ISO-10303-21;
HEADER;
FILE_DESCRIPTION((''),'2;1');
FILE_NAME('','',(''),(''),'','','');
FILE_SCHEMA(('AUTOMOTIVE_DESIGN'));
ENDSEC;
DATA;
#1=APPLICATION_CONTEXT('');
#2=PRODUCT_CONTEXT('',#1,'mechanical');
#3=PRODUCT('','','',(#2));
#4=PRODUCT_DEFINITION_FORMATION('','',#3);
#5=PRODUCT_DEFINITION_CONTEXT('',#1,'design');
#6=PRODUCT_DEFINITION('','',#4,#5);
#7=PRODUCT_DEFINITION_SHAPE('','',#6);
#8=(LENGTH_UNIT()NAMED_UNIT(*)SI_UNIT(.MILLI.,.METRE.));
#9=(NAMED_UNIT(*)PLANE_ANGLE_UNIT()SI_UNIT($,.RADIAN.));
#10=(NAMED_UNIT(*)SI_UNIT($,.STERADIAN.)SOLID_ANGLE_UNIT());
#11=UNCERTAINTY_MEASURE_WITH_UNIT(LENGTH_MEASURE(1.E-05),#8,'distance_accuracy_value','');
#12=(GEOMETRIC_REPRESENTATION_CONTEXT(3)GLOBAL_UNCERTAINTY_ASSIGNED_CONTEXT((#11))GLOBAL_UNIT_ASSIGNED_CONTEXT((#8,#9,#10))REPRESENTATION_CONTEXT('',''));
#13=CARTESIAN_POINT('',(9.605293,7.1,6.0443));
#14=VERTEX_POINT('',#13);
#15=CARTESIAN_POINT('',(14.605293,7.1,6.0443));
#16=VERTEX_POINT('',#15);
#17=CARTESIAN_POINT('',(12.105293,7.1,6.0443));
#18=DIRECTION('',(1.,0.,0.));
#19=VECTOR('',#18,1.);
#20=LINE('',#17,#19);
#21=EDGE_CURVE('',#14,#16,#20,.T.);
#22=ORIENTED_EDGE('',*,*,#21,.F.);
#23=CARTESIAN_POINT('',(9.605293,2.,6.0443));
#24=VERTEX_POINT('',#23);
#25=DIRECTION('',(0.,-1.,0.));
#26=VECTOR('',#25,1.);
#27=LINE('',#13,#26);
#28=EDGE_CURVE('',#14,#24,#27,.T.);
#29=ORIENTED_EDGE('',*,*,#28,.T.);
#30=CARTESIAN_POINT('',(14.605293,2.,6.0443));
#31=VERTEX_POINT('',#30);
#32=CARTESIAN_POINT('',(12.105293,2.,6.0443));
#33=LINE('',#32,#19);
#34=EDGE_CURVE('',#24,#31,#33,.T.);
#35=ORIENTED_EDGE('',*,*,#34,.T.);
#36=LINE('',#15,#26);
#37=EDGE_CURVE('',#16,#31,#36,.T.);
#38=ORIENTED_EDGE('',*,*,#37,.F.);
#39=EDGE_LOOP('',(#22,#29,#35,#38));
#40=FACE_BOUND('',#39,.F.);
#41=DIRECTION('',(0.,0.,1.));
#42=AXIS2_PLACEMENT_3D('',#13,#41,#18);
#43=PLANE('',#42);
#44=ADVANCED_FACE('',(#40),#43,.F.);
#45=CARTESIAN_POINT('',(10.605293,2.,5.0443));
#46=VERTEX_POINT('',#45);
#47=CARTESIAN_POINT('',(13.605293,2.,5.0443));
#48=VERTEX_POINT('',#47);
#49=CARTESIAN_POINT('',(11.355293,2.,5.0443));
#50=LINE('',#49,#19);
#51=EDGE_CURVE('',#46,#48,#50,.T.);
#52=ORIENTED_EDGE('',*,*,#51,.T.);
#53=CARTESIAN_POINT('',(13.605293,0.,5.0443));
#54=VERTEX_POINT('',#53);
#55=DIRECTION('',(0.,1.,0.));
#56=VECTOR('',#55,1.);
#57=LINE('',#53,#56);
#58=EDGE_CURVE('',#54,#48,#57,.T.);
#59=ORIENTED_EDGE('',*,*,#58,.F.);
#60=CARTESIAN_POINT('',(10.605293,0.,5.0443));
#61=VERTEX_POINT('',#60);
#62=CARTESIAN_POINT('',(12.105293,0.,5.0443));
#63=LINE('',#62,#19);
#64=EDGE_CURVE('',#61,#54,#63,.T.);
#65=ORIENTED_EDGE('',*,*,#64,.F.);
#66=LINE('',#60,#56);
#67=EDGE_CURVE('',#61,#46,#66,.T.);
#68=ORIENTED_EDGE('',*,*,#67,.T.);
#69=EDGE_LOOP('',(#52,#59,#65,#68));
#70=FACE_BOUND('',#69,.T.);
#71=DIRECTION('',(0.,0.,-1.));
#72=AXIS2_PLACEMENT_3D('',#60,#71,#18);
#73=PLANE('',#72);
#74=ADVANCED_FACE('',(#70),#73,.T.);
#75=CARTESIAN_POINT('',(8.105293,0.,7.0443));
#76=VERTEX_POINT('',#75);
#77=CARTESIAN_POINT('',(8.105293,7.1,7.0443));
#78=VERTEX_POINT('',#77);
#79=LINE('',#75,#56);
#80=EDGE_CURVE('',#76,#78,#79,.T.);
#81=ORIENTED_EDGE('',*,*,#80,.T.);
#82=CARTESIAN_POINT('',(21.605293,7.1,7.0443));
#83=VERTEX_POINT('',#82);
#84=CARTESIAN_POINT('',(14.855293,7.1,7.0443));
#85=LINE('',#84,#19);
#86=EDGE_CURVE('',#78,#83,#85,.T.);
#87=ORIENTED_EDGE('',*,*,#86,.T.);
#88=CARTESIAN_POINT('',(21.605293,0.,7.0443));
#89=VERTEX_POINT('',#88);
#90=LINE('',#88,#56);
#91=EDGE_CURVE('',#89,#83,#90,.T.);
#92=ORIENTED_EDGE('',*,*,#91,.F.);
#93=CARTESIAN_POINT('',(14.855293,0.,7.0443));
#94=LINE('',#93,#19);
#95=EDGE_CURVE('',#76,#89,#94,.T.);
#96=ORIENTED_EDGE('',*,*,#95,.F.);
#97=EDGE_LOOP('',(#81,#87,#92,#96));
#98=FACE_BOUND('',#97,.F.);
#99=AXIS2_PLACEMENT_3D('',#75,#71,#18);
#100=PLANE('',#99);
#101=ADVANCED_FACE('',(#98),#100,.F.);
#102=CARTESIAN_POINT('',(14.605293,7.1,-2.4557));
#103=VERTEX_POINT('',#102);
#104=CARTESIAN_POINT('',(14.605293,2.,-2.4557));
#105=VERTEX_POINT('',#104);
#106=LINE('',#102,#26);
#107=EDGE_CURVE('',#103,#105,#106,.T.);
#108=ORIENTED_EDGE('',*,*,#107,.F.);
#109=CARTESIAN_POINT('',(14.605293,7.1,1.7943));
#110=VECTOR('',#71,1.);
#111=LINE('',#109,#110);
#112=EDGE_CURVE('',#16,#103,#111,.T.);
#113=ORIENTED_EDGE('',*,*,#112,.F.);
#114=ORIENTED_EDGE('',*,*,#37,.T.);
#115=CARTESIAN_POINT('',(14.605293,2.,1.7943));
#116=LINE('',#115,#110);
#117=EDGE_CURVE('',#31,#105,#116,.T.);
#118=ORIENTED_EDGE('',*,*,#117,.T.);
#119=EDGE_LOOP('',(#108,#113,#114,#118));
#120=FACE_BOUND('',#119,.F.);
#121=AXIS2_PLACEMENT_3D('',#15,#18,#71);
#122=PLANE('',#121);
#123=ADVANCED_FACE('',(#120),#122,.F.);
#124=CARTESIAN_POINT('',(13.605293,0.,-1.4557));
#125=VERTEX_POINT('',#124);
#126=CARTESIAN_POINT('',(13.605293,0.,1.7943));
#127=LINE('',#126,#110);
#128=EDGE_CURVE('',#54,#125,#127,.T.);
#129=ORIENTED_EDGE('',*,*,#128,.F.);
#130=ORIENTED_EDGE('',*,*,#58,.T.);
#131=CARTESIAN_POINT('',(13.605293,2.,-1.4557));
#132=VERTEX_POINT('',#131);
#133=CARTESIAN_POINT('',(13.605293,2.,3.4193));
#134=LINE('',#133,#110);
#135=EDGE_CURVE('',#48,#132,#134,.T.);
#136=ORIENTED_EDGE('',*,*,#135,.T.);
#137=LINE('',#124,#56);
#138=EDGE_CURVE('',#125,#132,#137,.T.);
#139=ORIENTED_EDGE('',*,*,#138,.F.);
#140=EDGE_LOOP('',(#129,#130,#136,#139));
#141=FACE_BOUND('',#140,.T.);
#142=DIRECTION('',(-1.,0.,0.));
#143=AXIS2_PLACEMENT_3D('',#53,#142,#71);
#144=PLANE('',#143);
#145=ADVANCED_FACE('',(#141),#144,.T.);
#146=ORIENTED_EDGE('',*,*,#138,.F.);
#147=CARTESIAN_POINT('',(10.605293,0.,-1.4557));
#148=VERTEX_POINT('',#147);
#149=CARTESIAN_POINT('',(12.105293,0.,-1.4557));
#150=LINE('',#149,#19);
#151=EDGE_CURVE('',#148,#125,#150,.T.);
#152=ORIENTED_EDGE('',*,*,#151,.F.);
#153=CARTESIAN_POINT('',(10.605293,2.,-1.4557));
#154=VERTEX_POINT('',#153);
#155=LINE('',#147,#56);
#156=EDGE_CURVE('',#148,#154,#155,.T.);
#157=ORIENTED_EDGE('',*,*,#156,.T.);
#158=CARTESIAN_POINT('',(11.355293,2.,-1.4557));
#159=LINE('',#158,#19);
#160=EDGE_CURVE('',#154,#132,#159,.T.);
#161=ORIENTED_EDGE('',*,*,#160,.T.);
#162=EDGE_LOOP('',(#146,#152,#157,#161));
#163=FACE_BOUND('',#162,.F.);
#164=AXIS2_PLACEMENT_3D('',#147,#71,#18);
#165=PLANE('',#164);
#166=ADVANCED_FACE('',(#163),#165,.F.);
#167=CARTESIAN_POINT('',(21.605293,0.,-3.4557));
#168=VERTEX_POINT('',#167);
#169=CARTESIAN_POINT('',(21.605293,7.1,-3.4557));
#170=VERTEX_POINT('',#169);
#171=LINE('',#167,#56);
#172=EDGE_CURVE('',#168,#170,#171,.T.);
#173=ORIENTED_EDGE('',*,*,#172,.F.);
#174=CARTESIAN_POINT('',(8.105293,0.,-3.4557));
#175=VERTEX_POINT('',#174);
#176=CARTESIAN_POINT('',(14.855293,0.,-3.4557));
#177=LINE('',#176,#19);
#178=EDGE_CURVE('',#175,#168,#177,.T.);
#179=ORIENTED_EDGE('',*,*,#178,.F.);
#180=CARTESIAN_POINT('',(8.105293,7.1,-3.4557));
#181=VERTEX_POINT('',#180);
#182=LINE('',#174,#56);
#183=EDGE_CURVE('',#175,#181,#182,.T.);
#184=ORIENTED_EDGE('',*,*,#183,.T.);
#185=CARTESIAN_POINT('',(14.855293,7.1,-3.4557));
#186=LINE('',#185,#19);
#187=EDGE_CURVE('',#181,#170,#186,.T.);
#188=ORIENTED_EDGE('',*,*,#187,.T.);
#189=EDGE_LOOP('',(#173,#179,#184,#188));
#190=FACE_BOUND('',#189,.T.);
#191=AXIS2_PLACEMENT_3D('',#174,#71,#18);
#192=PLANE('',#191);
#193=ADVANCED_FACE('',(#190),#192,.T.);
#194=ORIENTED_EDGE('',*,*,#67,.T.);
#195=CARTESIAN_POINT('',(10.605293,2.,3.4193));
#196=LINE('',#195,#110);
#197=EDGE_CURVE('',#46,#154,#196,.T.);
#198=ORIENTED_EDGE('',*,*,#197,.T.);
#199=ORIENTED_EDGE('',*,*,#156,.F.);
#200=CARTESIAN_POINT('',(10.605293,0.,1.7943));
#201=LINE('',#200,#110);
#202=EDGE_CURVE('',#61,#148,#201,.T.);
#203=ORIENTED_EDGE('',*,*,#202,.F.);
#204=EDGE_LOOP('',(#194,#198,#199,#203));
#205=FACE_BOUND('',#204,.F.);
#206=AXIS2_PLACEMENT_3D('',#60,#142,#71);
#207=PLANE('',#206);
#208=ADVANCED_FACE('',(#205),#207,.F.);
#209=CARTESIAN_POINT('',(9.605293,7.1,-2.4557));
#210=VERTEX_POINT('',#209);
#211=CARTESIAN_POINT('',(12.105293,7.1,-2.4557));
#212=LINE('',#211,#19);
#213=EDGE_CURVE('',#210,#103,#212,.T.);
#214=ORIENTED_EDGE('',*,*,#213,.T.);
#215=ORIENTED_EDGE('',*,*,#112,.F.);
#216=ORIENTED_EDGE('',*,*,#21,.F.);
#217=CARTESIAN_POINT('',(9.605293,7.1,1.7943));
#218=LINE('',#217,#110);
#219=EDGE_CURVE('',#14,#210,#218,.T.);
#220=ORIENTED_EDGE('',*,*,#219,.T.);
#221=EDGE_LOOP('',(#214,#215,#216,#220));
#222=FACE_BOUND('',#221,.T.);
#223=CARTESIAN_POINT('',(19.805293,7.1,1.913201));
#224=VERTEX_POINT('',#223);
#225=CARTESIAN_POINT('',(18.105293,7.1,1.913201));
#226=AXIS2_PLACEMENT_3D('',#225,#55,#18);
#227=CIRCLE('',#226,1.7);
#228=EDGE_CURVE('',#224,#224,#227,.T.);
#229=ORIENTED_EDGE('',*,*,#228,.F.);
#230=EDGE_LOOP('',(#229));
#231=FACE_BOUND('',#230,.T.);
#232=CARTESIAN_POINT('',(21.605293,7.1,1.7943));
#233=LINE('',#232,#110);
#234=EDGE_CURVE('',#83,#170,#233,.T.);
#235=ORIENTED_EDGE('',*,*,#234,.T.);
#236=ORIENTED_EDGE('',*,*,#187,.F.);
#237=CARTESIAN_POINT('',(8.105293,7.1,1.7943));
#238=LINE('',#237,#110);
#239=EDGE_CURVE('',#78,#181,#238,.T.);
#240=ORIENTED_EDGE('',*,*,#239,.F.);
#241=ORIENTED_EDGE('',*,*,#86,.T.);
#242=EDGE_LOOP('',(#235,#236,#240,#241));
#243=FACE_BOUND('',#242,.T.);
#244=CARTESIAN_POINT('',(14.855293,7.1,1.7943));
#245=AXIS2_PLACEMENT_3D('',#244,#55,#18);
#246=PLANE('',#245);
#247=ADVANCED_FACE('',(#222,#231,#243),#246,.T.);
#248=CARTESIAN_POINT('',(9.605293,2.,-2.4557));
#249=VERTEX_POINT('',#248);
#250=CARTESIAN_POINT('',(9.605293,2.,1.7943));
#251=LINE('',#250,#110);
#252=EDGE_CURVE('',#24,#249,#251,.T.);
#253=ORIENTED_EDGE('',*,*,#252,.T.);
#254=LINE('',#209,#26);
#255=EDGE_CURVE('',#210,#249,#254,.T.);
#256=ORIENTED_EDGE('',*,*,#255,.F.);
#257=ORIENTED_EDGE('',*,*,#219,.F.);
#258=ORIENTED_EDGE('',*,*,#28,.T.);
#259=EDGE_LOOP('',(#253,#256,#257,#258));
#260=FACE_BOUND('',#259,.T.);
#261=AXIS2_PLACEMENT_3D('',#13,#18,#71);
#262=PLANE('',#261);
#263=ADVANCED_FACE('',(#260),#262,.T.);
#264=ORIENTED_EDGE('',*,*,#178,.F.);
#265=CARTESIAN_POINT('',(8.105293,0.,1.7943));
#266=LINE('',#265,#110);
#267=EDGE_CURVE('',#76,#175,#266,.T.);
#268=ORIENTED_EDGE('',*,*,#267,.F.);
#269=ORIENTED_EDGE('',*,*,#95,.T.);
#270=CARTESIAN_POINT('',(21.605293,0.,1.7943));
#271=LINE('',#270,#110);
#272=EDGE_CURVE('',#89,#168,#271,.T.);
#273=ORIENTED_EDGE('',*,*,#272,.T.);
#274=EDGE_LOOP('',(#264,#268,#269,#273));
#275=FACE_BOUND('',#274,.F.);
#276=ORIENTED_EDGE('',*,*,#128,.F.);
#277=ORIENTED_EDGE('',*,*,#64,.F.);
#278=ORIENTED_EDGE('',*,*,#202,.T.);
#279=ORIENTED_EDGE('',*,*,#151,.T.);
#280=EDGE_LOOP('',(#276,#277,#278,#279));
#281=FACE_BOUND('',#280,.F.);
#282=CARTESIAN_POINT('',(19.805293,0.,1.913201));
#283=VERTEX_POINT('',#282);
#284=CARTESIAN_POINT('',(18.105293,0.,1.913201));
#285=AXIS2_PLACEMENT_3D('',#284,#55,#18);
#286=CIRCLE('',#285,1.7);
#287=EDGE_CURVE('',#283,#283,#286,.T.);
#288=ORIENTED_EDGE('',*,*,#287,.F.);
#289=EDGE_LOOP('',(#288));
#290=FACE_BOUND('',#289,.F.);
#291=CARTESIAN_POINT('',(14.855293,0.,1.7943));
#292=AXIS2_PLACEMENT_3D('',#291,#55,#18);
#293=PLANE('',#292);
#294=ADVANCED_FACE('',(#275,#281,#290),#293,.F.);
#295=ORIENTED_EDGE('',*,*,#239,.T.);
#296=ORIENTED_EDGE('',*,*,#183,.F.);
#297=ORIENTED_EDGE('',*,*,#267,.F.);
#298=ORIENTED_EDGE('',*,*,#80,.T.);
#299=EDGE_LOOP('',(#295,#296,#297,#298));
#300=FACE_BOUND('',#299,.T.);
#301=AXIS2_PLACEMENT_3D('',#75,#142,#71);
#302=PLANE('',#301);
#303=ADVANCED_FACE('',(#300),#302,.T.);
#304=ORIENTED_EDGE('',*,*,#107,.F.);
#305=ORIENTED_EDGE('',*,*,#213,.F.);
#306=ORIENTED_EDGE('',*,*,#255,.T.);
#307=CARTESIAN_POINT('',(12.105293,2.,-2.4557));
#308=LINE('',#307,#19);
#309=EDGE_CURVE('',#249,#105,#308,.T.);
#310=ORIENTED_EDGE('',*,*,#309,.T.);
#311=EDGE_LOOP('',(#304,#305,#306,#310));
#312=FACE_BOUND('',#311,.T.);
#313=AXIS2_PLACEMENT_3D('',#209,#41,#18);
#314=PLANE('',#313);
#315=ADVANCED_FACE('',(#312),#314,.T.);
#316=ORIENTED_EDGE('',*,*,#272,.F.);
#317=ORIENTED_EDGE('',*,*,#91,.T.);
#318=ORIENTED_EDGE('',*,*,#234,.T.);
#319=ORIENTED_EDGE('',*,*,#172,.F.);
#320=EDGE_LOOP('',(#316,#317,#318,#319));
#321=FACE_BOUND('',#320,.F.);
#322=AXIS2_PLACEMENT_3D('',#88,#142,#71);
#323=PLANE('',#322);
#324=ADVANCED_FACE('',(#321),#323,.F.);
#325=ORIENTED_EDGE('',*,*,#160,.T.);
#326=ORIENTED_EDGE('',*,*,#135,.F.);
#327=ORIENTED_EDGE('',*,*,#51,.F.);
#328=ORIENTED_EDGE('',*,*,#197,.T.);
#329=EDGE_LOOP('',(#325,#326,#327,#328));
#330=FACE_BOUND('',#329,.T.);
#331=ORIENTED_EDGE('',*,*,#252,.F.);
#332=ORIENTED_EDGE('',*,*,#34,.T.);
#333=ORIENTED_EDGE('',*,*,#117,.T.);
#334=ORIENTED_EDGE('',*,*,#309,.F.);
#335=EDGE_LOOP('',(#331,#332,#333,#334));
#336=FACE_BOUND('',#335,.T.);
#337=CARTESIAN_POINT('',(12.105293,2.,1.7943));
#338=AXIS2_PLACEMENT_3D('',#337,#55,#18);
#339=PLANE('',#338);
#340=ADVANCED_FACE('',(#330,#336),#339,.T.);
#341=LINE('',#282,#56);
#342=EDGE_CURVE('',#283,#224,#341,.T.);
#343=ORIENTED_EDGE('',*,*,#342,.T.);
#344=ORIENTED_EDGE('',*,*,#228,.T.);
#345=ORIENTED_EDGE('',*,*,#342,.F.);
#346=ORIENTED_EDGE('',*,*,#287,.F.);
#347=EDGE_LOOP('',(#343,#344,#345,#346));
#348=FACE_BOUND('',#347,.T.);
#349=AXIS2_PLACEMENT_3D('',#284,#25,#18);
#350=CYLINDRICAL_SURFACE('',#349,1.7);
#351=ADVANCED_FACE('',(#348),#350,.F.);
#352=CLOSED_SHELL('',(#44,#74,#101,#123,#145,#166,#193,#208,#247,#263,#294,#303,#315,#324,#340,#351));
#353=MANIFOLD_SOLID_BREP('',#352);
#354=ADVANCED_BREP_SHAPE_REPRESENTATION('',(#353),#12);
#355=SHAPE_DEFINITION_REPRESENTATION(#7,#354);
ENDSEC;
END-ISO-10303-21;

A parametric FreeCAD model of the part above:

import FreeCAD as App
import Part
import Sketcher
from FreeCAD import Vector


def add_polygon(sketch, points):
    """Adds a closed chain of lines whose ends are joined by coincident constraints."""
    first, n = sketch.GeometryCount, len(points)
    for a, b in zip(points, points[1:] + points[:1]):
        sketch.addGeometry(Part.LineSegment(App.Vector(*a, 0), App.Vector(*b, 0)), False)
    for i in range(n):
        sketch.addConstraint(Sketcher.Constraint("Coincident", first + i, 2, first + (i + 1) % n, 1))

doc = App.newDocument("Part")
body = doc.addObject("PartDesign::Body", "Body")

sketch1 = body.newObject("Sketcher::SketchObject", "Sketch")
sketch1.AttachmentSupport = (doc.getObject("XZ_Plane"), [""])
sketch1.MapMode = "FlatFace"
add_polygon(sketch1, [(8.1, -3.5), (8.1, 7), (21.6, 7), (21.6, -3.5)])
sketch1.addGeometry(Part.Circle(Vector(18.1, 1.9, 0), Vector(0, 0, 1), 1.7), False)
add_polygon(sketch1, [(13.6, 5), (10.6, 5), (10.6, -1.5), (13.6, -1.5)])
sketch1.addConstraint(Sketcher.Constraint("Vertical", 0))
sketch1.addConstraint(Sketcher.Constraint("Horizontal", 1))
sketch1.addConstraint(Sketcher.Constraint("Vertical", 2))
sketch1.addConstraint(Sketcher.Constraint("Horizontal", 3))
sketch1.addConstraint(Sketcher.Constraint("Horizontal", 5))
sketch1.addConstraint(Sketcher.Constraint("Vertical", 6))
sketch1.addConstraint(Sketcher.Constraint("Horizontal", 7))
sketch1.addConstraint(Sketcher.Constraint("Vertical", 8))
sketch1.addConstraint(Sketcher.Constraint("Diameter", 4, 3.4))
sketch1.addConstraint(Sketcher.Constraint("DistanceX", 5, 2, 5, 1, 3.0))
sketch1.addConstraint(Sketcher.Constraint("DistanceX", 1, 1, 1, 2, 13.5))
sketch1.addConstraint(Sketcher.Constraint("DistanceY", 0, 1, 0, 2, 10.5))
sketch1.addConstraint(Sketcher.Constraint("DistanceY", 6, 2, 6, 1, 6.5))
sketch1.addConstraint(Sketcher.Constraint("DistanceX", 0, 2, 4, 3, 10.0))
sketch1.addConstraint(Sketcher.Constraint("DistanceY", 5, 2, 0, 2, 2.0))
sketch1.addConstraint(Sketcher.Constraint("DistanceX", 5, 2, 1, 2, 11.0))
sketch1.addConstraint(Sketcher.Constraint("DistanceY", -1, 1, 4, 3, 1.913201))
sketch1.addConstraint(Sketcher.Constraint("DistanceY", -1, 1, 0, 2, 7.0443))
sketch1.addConstraint(Sketcher.Constraint("DistanceX", -1, 1, 4, 3, 18.105293))
pad1 = body.newObject("PartDesign::Pad", "Pad")
pad1.Profile = sketch1
pad1.Length = 7.1
pad1.Reversed = True

sketch2 = body.newObject("Sketcher::SketchObject", "Sketch001")
sketch2.AttachmentSupport = (doc.getObject("XZ_Plane"), [""])
sketch2.MapMode = "FlatFace"
sketch2.AttachmentOffset = App.Placement(Vector(0, 0, -7.1), App.Rotation())
add_polygon(sketch2, [(10, -2), (10, 6), (15, 6), (15, -2)])
sketch2.addConstraint(Sketcher.Constraint("Vertical", 0))
sketch2.addConstraint(Sketcher.Constraint("Horizontal", 1))
sketch2.addConstraint(Sketcher.Constraint("Vertical", 2))
sketch2.addConstraint(Sketcher.Constraint("Horizontal", 3))
sketch2.addConstraint(Sketcher.Constraint("DistanceX", 1, 1, 1, 2, 5.0))
sketch2.addConstraint(Sketcher.Constraint("DistanceY", 0, 1, 0, 2, 8.5))
sketch2.addConstraint(Sketcher.Constraint("DistanceY", -1, 1, 0, 2, 6.0443))
sketch2.addConstraint(Sketcher.Constraint("DistanceX", -1, 1, 0, 2, 9.605293))
pocket1 = body.newObject("PartDesign::Pocket", "Pocket")
pocket1.Profile = sketch2
pocket1.Length = 5.1
pocket1.Reversed = True

doc.recompute()
